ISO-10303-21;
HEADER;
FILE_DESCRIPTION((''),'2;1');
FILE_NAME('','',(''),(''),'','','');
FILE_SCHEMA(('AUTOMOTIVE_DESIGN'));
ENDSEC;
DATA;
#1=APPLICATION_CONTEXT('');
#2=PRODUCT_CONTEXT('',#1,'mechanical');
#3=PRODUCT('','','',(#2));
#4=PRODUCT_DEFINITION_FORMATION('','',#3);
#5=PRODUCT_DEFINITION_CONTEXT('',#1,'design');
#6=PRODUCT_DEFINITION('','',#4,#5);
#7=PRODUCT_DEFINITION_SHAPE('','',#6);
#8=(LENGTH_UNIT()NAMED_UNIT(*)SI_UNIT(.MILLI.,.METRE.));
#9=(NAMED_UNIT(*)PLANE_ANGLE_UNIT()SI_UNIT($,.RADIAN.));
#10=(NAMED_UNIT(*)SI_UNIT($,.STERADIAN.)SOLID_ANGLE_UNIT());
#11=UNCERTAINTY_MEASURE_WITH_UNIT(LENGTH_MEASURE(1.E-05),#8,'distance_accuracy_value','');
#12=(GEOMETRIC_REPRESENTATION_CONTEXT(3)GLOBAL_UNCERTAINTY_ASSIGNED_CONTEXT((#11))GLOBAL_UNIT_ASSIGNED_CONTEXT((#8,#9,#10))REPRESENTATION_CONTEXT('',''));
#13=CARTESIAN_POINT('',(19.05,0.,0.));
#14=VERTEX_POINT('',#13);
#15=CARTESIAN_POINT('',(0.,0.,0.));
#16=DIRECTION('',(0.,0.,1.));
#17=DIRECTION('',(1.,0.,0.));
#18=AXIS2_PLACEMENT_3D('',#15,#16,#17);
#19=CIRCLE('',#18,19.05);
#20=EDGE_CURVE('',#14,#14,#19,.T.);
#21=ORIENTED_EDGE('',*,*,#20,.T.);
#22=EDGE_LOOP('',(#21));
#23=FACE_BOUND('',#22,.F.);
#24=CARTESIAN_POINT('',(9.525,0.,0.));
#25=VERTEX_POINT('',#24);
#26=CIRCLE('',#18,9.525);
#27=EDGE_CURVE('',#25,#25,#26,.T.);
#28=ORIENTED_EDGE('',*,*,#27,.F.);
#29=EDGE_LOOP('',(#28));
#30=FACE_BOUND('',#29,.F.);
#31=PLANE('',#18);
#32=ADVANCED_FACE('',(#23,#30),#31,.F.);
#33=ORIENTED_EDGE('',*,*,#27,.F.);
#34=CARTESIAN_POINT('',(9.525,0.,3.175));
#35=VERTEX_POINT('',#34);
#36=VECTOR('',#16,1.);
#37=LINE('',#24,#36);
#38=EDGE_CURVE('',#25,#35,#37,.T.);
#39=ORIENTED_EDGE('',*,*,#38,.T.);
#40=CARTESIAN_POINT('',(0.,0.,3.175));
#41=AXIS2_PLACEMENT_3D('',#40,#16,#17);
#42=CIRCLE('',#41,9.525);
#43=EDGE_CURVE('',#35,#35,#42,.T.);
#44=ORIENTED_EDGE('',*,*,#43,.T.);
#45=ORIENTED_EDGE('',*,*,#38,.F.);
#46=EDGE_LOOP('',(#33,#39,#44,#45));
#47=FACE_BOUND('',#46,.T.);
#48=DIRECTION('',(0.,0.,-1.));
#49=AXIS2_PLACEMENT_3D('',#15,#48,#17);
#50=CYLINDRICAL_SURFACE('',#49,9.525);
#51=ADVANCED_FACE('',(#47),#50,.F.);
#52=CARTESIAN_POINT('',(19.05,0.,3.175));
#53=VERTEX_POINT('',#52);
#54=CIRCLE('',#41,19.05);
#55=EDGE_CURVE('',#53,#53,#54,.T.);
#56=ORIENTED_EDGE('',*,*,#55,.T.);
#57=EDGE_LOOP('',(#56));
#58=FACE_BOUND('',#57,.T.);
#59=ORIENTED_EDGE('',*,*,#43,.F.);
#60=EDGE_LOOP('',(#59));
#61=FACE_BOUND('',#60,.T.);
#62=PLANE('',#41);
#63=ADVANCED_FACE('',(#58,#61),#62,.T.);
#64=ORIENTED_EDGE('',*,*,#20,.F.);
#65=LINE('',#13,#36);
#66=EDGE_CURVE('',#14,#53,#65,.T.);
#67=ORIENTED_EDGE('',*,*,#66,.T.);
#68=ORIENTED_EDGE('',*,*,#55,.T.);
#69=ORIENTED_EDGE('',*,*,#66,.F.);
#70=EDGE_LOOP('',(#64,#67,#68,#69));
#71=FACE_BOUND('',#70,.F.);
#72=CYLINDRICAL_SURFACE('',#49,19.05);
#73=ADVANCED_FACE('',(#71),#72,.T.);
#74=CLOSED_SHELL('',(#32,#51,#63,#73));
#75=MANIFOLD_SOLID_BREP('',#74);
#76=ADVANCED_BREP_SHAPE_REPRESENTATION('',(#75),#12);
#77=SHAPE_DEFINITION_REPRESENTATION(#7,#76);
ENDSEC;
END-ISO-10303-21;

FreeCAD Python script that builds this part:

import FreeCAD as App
import Part
import Sketcher

V = App.Vector
Q = App.Units.Quantity

doc = App.newDocument("Part")
params = doc.addObject("Spreadsheet::Sheet", "Params")
for row, (alias, value) in enumerate([
    ("sketch1_diameter", "1.5 in"),
    ("sketch1_diameter2", "0.75 in"),
    ("pad1_length", "0.125 in"),
    ("sketch2_diameter", "1.5 in"),
    ("sketch2_diameter2", "0.75 in"),
    ("pad2_length", "0.125 in"),
], start=1):
    params.set(f"A{row}", alias)
    params.set(f"B{row}", "=" + value)
    params.setAlias(f"B{row}", alias)

body = doc.addObject("PartDesign::Body", "Body")

# Sketch on XY plane
sketch1 = body.newObject("Sketcher::SketchObject", "Sketch")
sketch1.AttachmentSupport = (doc.getObject("XY_Plane"), [""])
sketch1.MapMode = "FlatFace"
sketch1.addGeometry([
    Part.Circle(V(0, 0, 0), V(0, 0, 1), 19.05),
    Part.Circle(V(0, 0, 0), V(0, 0, 1), 9.525),
], False)
sketch1.addConstraint([
    Sketcher.Constraint("Coincident", 0, 3, -1, 1),
    Sketcher.Constraint("Coincident", 1, 3, -1, 1),
    Sketcher.Constraint("Diameter", 0, Q("1.5 in")),
    Sketcher.Constraint("Diameter", 1, Q("0.75 in")),
])
sketch1.setExpression("Constraints[2]", "Params.sketch1_diameter")
sketch1.setExpression("Constraints[3]", "Params.sketch1_diameter2")
pad1 = body.newObject("PartDesign::Pad", "Pad")
pad1.Profile = sketch1
pad1.setExpression("Length", "Params.pad1_length")

# Sketch on XY plane
sketch2 = body.newObject("Sketcher::SketchObject", "Sketch001")
sketch2.AttachmentSupport = (doc.getObject("XY_Plane"), [""])
sketch2.MapMode = "FlatFace"
sketch2.addGeometry([
    Part.Circle(V(0, 0, 0), V(0, 0, 1), 19.05),
    Part.Circle(V(0, 0, 0), V(0, 0, 1), 9.525),
], False)
sketch2.addConstraint([
    Sketcher.Constraint("Coincident", 0, 3, -1, 1),
    Sketcher.Constraint("Coincident", 1, 3, -1, 1),
    Sketcher.Constraint("Diameter", 0, Q("1.5 in")),
    Sketcher.Constraint("Diameter", 1, Q("0.75 in")),
])
sketch2.setExpression("Constraints[2]", "Params.sketch2_diameter")
sketch2.setExpression("Constraints[3]", "Params.sketch2_diameter2")
pad2 = body.newObject("PartDesign::Pad", "Pad001")
pad2.Profile = sketch2
pad2.setExpression("Length", "Params.pad2_length")

doc.recompute()
